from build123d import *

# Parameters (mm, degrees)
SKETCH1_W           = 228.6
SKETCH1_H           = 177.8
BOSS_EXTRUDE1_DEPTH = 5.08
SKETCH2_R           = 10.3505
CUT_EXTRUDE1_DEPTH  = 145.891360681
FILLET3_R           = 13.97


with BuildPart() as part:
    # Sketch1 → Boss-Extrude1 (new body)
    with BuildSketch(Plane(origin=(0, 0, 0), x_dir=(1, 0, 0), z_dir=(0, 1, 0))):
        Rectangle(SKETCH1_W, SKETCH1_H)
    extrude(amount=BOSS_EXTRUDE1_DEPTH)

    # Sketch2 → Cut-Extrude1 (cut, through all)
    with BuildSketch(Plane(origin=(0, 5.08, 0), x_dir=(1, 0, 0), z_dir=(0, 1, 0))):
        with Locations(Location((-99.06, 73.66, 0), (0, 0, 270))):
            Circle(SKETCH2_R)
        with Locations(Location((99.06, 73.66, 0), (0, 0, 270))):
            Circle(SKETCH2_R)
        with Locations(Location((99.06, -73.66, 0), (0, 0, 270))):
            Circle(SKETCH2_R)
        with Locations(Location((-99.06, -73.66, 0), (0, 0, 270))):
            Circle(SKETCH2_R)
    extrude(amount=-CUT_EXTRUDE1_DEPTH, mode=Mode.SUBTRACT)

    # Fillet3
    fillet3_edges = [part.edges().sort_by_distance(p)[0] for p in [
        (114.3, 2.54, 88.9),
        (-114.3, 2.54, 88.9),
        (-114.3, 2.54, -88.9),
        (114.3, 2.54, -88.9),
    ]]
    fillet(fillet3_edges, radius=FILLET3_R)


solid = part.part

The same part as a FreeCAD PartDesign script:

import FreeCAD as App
import Part
import Sketcher
Q = App.Units.Quantity


def edges_at(feature, points):
    """Names of the edges that pass closest to the given points."""
    edges = feature.Shape.Edges
    near = lambda p: min(range(len(edges)), key=lambda i: edges[i].distToShape(Part.Vertex(*p))[0])
    return sorted({f"Edge{near(p) + 1}" for p in points})


def add_polygon(sketch, points):
    """Adds a closed chain of lines whose ends are joined by coincident constraints."""
    first, n = sketch.GeometryCount, len(points)
    for a, b in zip(points, points[1:] + points[:1]):
        sketch.addGeometry(Part.LineSegment(App.Vector(*a, 0), App.Vector(*b, 0)), False)
    for i in range(n):
        sketch.addConstraint(Sketcher.Constraint("Coincident", first + i, 2, first + (i + 1) % n, 1))

doc = App.newDocument("Part")
params = doc.addObject("Spreadsheet::Sheet", "Params")
for row, (alias, value) in enumerate([
    ("sketch1_width", "9 in"),
    ("sketch1_height", "7 in"),
    ("pad1_length", "0.2 in"),
    ("sketch2_diameter", "0.815 in"),
    ("fillet_radius", "0.55 in"),
], start=1):
    params.set(f"A{row}", alias)
    params.set(f"B{row}", "=" + value)
    params.setAlias(f"B{row}", alias)

body = doc.addObject("PartDesign::Body", "Body")

sketch1 = doc.addObject("Sketcher::SketchObject", "Sketch")
body.addObject(sketch1)
sketch1.AttachmentSupport = (doc.XZ_Plane, [""])
sketch1.MapMode = "FlatFace"
add_polygon(sketch1, [(-114.3, -88.9), (-114.3, 88.9), (114.3, 88.9), (114.3, -88.9)])
sketch1.addConstraint(Sketcher.Constraint("Vertical", 0))
sketch1.addConstraint(Sketcher.Constraint("Horizontal", 1))
sketch1.addConstraint(Sketcher.Constraint("Vertical", 2))
sketch1.addConstraint(Sketcher.Constraint("Horizontal", 3))
sketch1.addConstraint(Sketcher.Constraint("Symmetric", 0, 2, 2, 2, -1, 1))
sketch1.addConstraint(Sketcher.Constraint("DistanceX", 1, 1, 1, 2, Q("9 in")))
sketch1.addConstraint(Sketcher.Constraint("DistanceY", 0, 1, 0, 2, Q("7 in")))
sketch1.setExpression("Constraints[9]", "Params.sketch1_width")
sketch1.setExpression("Constraints[10]", "Params.sketch1_height")
pad1 = doc.addObject("PartDesign::Pad", "Pad")
body.addObject(pad1)
pad1.Profile = sketch1
pad1.setExpression("Length", "Params.pad1_length")
pad1.Reversed = True

sketch2 = doc.addObject("Sketcher::SketchObject", "Sketch001")
body.addObject(sketch2)
sketch2.AttachmentSupport = (doc.XZ_Plane, [""])
sketch2.MapMode = "FlatFace"
sketch2.AttachmentOffset = App.Placement(App.Vector(0, 0, -0.2 * 25.4), App.Rotation())
sketch2.addGeometry(Part.Circle(App.Vector(-99.06, -73.66, 0), App.Vector(0, 0, 1), 10.3505), False)
sketch2.addGeometry(Part.Circle(App.Vector(99.06, -73.66, 0), App.Vector(0, 0, 1), 10.3505), False)
sketch2.addGeometry(Part.Circle(App.Vector(99.06, 73.66, 0), App.Vector(0, 0, 1), 10.3505), False)
sketch2.addGeometry(Part.Circle(App.Vector(-99.06, 73.66, 0), App.Vector(0, 0, 1), 10.3505), False)
sketch2.addConstraint(Sketcher.Constraint("Equal", 0, 1))
sketch2.addConstraint(Sketcher.Constraint("Equal", 1, 2))
sketch2.addConstraint(Sketcher.Constraint("Equal", 2, 3))
sketch2.addConstraint(Sketcher.Constraint("Symmetric", 0, 3, 2, 3, -1, 1))
sketch2.addConstraint(Sketcher.Constraint("Symmetric", 1, 3, 3, 3, -1, 1))
sketch2.addConstraint(Sketcher.Constraint("Symmetric", 0, 3, 1, 3, -2))
sketch2.addConstraint(Sketcher.Constraint("Diameter", 0, Q("0.815 in")))
sketch2.addConstraint(Sketcher.Constraint("DistanceX", 0, 3, -1, 1, Q("3.9 in")))
sketch2.addConstraint(Sketcher.Constraint("DistanceY", 0, 3, -1, 1, Q("2.9 in")))
sketch2.setExpression("Constraints[6]", "Params.sketch2_diameter")
pocket1 = doc.addObject("PartDesign::Pocket", "Pocket")
body.addObject(pocket1)
pocket1.Profile = sketch2
pocket1.Type = "ThroughAll"
pocket1.Reversed = True
doc.recompute()

fillet = doc.addObject("PartDesign::Fillet", "Fillet")
body.addObject(fillet)
fillet.Base = (pocket1, edges_at(pocket1, [
    (114.3, 2.54, 88.9),
    (-114.3, 2.54, 88.9),
    (-114.3, 2.54, -88.9),
    (114.3, 2.54, -88.9),
]))
fillet.setExpression("Radius", "Params.fillet_radius")

doc.recompute()
